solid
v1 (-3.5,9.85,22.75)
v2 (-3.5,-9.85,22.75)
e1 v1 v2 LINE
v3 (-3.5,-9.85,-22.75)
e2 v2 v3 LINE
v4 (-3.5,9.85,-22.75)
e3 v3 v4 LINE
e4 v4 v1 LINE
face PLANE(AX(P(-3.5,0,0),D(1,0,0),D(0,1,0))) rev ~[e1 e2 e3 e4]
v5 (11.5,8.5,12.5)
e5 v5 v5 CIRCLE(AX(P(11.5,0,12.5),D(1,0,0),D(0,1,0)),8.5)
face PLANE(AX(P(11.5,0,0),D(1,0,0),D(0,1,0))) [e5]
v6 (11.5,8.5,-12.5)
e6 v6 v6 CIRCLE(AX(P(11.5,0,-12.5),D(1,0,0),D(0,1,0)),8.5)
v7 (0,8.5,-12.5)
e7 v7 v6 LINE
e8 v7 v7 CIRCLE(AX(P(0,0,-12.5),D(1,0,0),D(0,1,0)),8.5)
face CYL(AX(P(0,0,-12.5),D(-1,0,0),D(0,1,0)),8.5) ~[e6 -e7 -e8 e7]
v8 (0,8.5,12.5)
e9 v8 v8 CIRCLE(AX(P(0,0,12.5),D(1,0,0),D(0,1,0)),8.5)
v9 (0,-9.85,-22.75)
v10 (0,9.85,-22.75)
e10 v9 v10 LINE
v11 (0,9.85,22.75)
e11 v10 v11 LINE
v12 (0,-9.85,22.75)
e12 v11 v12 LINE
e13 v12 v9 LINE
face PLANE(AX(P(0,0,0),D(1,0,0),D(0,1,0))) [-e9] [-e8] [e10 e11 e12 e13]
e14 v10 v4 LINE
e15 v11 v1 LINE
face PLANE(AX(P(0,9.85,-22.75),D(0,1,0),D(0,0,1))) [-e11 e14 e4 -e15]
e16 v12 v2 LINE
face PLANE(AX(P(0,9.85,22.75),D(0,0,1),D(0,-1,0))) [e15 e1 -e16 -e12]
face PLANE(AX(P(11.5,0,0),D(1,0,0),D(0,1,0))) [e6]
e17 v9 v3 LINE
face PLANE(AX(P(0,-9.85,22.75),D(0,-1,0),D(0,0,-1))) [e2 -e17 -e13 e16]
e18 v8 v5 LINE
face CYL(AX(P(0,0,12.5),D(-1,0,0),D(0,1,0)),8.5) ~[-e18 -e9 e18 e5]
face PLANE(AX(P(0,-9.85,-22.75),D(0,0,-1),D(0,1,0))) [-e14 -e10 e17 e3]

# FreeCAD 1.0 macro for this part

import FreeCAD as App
import Part
import Sketcher
from FreeCAD import Vector


def add_polygon(sketch, points):
    """Adds a closed chain of lines whose ends are joined by coincident constraints."""
    first, n = sketch.GeometryCount, len(points)
    for a, b in zip(points, points[1:] + points[:1]):
        sketch.addGeometry(Part.LineSegment(App.Vector(*a, 0), App.Vector(*b, 0)), False)
    for i in range(n):
        sketch.addConstraint(Sketcher.Constraint("Coincident", first + i, 2, first + (i + 1) % n, 1))

doc = App.newDocument("Part")
body = doc.addObject("PartDesign::Body", "Body")

# Sketch on YZ plane
sketch1 = doc.addObject("Sketcher::SketchObject", "Sketch")
body.addObject(sketch1)
sketch1.AttachmentSupport = (doc.YZ_Plane, [""])
sketch1.MapMode = "FlatFace"
add_polygon(sketch1, [(10, -23), (10, 23), (-10, 23), (-10, -23)])  # lines 0-3
sketch1.addConstraint([
    Sketcher.Constraint("Vertical", 0),
    Sketcher.Constraint("Horizontal", 1),
    Sketcher.Constraint("Vertical", 2),
    Sketcher.Constraint("Horizontal", 3),
    Sketcher.Constraint("Symmetric", 0, 2, 2, 2, -1, 1),
    Sketcher.Constraint("DistanceX", 1, 2, 1, 1, 19.7),
    Sketcher.Constraint("DistanceY", 0, 1, 0, 2, 45.5),
])
pad1 = doc.addObject("PartDesign::Pad", "Pad")
body.addObject(pad1)
pad1.Profile = sketch1
pad1.Length = 3.5
pad1.Reversed = True

# Sketch on YZ plane
sketch2 = doc.addObject("Sketcher::SketchObject", "Sketch001")
body.addObject(sketch2)
sketch2.AttachmentSupport = (doc.YZ_Plane, [""])
sketch2.MapMode = "FlatFace"
sketch2.addGeometry([
    Part.Circle(Vector(0, 12, 0), Vector(0, 0, 1), 8),
    Part.Circle(Vector(0, -12, 0), Vector(0, 0, 1), 8),
], False)
sketch2.addConstraint([
    Sketcher.Constraint("Equal", 0, 1),
    Sketcher.Constraint("Symmetric", 0, 3, 1, 3, -1, 1),
    Sketcher.Constraint("PointOnObject", 0, 3, -2),
    Sketcher.Constraint("Diameter", 0, 17.0),
    Sketcher.Constraint("DistanceY", 1, 3, 0, 3, 25.0),
])
pad2 = doc.addObject("PartDesign::Pad", "Pad001")
body.addObject(pad2)
pad2.Profile = sketch2
pad2.Length = 11.5

doc.recompute()
